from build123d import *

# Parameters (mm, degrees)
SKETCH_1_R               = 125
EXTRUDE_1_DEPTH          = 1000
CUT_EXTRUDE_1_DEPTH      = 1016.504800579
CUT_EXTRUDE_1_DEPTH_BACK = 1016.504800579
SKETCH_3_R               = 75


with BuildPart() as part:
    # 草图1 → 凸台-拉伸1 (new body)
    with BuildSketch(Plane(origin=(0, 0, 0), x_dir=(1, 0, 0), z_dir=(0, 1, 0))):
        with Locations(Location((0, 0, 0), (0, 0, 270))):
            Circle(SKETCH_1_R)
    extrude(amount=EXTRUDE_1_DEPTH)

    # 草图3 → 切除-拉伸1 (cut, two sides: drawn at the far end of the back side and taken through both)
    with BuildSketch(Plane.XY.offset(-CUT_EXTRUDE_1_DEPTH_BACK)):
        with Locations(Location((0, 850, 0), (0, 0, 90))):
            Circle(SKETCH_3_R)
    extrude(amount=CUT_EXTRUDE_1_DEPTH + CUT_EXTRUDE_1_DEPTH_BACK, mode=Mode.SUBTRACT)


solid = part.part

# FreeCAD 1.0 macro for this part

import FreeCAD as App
import Part
import Sketcher

doc = App.newDocument("Part")
body = doc.addObject("PartDesign::Body", "Body")

sketch1 = body.newObject("Sketcher::SketchObject", "Sketch")
sketch1.AttachmentSupport = (doc.getObject("XZ_Plane"), [""])
sketch1.MapMode = "FlatFace"
sketch1.addGeometry(Part.Circle(App.Vector(0, 0, 0), App.Vector(0, 0, 1), 125), False)
sketch1.addConstraint([
    Sketcher.Constraint("Coincident", 0, 3, -1, 1),
    Sketcher.Constraint("Diameter", 0, 250.0),
])
pad1 = body.newObject("PartDesign::Pad", "Pad")
pad1.Profile = sketch1
pad1.Length = 1000
pad1.Reversed = True

sketch2 = body.newObject("Sketcher::SketchObject", "Sketch001")
sketch2.AttachmentSupport = (doc.getObject("XY_Plane"), [""])
sketch2.MapMode = "FlatFace"
sketch2.addGeometry(Part.Circle(App.Vector(0, 850, 0), App.Vector(0, 0, 1), 75), False)
sketch2.addConstraint([
    Sketcher.Constraint("PointOnObject", 0, 3, -2),
    Sketcher.Constraint("Diameter", 0, 150.0),
    Sketcher.Constraint("DistanceY", -1, 1, 0, 3, 850.0),
])
pocket1 = body.newObject("PartDesign::Pocket", "Pocket")
pocket1.Profile = sketch2
pocket1.Type = "ThroughAll"
pocket1.Midplane = True

doc.recompute()
